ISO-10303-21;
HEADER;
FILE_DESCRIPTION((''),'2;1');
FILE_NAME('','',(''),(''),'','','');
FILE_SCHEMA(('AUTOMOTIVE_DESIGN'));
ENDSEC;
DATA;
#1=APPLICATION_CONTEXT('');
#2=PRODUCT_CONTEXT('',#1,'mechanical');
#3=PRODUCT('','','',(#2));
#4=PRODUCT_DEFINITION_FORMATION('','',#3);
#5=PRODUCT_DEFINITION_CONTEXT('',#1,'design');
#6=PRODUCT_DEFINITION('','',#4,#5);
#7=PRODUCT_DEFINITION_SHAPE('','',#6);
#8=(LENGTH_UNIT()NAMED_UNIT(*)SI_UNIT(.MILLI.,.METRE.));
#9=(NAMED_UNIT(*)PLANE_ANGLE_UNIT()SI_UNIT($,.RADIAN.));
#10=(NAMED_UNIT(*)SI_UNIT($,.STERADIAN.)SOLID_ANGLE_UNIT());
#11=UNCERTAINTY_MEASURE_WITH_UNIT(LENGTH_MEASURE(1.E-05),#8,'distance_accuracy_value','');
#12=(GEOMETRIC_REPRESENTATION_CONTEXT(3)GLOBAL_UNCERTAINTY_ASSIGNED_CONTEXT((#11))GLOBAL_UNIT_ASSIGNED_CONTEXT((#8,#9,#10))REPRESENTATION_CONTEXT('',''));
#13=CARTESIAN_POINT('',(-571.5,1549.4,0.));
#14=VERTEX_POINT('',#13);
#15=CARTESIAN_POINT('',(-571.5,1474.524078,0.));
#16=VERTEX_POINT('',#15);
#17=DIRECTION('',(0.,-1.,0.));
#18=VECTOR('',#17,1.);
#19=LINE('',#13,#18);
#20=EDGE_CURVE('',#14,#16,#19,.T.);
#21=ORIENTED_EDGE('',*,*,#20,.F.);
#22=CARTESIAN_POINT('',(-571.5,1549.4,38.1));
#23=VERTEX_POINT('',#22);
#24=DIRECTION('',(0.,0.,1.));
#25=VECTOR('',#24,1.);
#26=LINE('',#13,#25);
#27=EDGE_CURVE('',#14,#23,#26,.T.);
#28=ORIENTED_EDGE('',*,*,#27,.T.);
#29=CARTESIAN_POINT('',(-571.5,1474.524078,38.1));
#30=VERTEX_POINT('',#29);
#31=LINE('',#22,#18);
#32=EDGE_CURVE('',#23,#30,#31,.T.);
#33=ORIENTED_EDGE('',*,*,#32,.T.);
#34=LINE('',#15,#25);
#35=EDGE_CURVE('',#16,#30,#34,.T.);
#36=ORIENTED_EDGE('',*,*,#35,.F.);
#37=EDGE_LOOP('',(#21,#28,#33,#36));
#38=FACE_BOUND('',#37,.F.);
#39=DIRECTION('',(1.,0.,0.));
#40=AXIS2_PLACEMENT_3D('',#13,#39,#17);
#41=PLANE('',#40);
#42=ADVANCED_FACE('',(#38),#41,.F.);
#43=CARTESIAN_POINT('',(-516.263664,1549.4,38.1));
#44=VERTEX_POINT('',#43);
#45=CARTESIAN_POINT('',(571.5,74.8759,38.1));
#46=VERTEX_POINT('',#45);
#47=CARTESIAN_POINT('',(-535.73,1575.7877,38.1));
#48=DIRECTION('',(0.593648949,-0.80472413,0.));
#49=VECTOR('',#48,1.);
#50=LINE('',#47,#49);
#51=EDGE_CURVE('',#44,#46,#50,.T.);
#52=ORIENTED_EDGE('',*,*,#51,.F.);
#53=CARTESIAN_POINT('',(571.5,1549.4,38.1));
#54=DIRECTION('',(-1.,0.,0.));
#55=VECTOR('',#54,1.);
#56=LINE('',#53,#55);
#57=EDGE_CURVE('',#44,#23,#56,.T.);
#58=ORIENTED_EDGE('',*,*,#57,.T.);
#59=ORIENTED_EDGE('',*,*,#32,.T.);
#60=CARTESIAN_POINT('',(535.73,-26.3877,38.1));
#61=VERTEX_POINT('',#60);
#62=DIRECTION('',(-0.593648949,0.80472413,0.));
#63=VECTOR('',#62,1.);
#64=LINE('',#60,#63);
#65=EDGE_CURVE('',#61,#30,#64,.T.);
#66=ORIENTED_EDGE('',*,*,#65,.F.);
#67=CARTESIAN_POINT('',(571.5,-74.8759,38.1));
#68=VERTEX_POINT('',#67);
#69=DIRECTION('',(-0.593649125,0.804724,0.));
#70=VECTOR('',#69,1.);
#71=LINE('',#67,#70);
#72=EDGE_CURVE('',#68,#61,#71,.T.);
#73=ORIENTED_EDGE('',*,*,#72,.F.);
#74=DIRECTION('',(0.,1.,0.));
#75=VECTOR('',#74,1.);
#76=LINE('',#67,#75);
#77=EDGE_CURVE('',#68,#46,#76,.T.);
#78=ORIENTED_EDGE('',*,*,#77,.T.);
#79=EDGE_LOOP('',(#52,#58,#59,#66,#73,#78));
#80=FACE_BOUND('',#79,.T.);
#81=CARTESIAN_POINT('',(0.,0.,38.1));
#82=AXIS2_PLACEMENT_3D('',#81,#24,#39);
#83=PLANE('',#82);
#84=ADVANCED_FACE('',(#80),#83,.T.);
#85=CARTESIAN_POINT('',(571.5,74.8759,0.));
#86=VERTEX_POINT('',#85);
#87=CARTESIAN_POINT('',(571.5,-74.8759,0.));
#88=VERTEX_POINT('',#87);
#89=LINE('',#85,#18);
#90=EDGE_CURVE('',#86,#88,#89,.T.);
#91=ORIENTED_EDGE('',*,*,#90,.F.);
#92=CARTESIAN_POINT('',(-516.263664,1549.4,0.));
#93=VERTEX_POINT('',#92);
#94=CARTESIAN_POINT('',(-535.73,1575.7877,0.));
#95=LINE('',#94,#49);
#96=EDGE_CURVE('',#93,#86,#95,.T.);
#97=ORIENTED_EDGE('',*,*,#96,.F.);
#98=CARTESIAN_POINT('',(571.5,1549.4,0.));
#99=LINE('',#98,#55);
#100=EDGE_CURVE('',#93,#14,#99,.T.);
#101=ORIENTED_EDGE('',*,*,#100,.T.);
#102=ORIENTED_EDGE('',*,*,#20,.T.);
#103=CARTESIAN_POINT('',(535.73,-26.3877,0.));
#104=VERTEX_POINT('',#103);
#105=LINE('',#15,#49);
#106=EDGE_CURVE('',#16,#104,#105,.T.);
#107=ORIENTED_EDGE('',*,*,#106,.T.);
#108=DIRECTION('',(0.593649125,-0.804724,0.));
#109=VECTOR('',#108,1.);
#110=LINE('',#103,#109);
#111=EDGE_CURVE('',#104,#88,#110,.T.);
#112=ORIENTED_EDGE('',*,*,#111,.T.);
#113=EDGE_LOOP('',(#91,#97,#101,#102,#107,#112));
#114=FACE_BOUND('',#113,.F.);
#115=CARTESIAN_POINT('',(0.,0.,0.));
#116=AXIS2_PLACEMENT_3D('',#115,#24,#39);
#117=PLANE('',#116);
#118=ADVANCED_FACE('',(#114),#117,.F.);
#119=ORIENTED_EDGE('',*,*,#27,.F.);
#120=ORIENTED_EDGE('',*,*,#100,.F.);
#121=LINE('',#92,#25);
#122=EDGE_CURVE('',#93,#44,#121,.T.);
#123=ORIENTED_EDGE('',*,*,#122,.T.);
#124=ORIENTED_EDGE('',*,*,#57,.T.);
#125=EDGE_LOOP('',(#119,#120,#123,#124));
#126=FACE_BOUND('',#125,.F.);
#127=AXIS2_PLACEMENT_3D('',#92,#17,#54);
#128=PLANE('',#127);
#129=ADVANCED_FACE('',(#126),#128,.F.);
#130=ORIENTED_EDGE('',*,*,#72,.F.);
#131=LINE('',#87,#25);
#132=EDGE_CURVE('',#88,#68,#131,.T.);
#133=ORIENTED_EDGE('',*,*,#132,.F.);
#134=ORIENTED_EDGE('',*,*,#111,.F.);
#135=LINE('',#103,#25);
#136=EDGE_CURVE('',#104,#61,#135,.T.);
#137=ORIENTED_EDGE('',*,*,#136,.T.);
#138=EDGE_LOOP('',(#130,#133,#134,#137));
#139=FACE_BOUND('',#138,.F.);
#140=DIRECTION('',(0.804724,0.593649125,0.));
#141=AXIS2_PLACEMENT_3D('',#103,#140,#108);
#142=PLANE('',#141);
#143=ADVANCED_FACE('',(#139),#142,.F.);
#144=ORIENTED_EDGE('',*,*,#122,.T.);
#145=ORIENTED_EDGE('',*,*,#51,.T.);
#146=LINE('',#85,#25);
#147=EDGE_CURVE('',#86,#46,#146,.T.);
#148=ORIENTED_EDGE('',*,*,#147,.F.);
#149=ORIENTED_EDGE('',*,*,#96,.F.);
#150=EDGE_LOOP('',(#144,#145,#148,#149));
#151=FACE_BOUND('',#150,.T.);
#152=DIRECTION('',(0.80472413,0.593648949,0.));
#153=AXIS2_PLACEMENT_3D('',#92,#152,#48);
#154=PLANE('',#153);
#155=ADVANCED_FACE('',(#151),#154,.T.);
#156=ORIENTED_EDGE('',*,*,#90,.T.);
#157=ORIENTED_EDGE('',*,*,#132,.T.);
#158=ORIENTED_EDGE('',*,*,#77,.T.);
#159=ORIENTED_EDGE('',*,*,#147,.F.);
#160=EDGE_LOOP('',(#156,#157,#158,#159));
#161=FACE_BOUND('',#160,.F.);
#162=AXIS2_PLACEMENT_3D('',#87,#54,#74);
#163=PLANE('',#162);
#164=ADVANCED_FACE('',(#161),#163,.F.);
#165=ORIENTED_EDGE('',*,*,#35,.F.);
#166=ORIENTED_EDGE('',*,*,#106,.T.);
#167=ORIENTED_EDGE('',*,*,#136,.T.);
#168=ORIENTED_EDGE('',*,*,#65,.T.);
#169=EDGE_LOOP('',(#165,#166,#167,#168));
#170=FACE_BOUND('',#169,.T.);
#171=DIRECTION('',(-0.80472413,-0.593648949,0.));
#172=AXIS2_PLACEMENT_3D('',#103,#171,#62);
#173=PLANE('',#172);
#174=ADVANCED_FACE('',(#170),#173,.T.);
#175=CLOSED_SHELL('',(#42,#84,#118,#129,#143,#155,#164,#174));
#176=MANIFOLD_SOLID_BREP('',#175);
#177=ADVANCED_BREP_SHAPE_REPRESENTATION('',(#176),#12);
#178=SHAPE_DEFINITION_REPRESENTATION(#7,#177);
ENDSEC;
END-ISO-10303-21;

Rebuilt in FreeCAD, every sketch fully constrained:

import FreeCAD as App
import Part
import Sketcher
from FreeCAD import Vector
Q = App.Units.Quantity

doc = App.newDocument("Part")
body = doc.addObject("PartDesign::Body", "Body")

sketch1 = doc.addObject("Sketcher::SketchObject", "Sketch")
body.addObject(sketch1)
sketch1.AttachmentSupport = (doc.XY_Plane, [""])
sketch1.MapMode = "FlatFace"
sketch1.addGeometry(Part.LineSegment(Vector(536, -26, 0), Vector(572, -75, 0)), False)
sketch1.addGeometry(Part.LineSegment(Vector(572, -75, 0), Vector(572, 75, 0)), False)
sketch1.addGeometry(Part.LineSegment(Vector(572, 75, 0), Vector(-516, 1549, 0)), False)
sketch1.addGeometry(Part.LineSegment(Vector(-516, 1549, 0), Vector(-572, 1549, 0)), False)
sketch1.addGeometry(Part.LineSegment(Vector(-572, 1549, 0), Vector(-572, 1475, 0)), False)
sketch1.addGeometry(Part.LineSegment(Vector(-572, 1475, 0), Vector(536, -26, 0)), False)
sketch1.addConstraint(Sketcher.Constraint("Coincident", 0, 2, 1, 1))
sketch1.addConstraint(Sketcher.Constraint("Coincident", 1, 2, 2, 1))
sketch1.addConstraint(Sketcher.Constraint("Coincident", 2, 2, 3, 1))
sketch1.addConstraint(Sketcher.Constraint("Coincident", 3, 2, 4, 1))
sketch1.addConstraint(Sketcher.Constraint("Coincident", 4, 2, 5, 1))
sketch1.addConstraint(Sketcher.Constraint("Coincident", 5, 2, 0, 1))
sketch1.addConstraint(Sketcher.Constraint("Vertical", 1))
sketch1.addConstraint(Sketcher.Constraint("Horizontal", 3))
sketch1.addConstraint(Sketcher.Constraint("Vertical", 4))
sketch1.addConstraint(Sketcher.Constraint("Parallel", 0, 2))
sketch1.addConstraint(Sketcher.Constraint("Parallel", 2, 5))
sketch1.addConstraint(Sketcher.Constraint("DistanceX", 3, 2, 1, 2, Q("45 in")))
sketch1.addConstraint(Sketcher.Constraint("DistanceY", -1, 1, 2, 2, Q("61 in")))
sketch1.addConstraint(Sketcher.Constraint("DistanceY", 0, 2, 4, 2, Q("61 in")))
sketch1.addConstraint(Sketcher.Constraint("DistanceX", -1, 1, 0, 2, Q("22.5 in")))
sketch1.addConstraint(Sketcher.Constraint("DistanceX", 3, 2, 3, 1, Q("55.2363 mm")))
sketch1.addConstraint(Sketcher.Constraint("DistanceY", 1, 1, 1, 2, Q("149.7518 mm")))
sketch1.addConstraint(Sketcher.Constraint("Distance", 0, Q("60.2544 mm")))
pad1 = doc.addObject("PartDesign::Pad", "Pad")
body.addObject(pad1)
pad1.Profile = sketch1
pad1.Length = Q("1.5 in")

doc.recompute()
